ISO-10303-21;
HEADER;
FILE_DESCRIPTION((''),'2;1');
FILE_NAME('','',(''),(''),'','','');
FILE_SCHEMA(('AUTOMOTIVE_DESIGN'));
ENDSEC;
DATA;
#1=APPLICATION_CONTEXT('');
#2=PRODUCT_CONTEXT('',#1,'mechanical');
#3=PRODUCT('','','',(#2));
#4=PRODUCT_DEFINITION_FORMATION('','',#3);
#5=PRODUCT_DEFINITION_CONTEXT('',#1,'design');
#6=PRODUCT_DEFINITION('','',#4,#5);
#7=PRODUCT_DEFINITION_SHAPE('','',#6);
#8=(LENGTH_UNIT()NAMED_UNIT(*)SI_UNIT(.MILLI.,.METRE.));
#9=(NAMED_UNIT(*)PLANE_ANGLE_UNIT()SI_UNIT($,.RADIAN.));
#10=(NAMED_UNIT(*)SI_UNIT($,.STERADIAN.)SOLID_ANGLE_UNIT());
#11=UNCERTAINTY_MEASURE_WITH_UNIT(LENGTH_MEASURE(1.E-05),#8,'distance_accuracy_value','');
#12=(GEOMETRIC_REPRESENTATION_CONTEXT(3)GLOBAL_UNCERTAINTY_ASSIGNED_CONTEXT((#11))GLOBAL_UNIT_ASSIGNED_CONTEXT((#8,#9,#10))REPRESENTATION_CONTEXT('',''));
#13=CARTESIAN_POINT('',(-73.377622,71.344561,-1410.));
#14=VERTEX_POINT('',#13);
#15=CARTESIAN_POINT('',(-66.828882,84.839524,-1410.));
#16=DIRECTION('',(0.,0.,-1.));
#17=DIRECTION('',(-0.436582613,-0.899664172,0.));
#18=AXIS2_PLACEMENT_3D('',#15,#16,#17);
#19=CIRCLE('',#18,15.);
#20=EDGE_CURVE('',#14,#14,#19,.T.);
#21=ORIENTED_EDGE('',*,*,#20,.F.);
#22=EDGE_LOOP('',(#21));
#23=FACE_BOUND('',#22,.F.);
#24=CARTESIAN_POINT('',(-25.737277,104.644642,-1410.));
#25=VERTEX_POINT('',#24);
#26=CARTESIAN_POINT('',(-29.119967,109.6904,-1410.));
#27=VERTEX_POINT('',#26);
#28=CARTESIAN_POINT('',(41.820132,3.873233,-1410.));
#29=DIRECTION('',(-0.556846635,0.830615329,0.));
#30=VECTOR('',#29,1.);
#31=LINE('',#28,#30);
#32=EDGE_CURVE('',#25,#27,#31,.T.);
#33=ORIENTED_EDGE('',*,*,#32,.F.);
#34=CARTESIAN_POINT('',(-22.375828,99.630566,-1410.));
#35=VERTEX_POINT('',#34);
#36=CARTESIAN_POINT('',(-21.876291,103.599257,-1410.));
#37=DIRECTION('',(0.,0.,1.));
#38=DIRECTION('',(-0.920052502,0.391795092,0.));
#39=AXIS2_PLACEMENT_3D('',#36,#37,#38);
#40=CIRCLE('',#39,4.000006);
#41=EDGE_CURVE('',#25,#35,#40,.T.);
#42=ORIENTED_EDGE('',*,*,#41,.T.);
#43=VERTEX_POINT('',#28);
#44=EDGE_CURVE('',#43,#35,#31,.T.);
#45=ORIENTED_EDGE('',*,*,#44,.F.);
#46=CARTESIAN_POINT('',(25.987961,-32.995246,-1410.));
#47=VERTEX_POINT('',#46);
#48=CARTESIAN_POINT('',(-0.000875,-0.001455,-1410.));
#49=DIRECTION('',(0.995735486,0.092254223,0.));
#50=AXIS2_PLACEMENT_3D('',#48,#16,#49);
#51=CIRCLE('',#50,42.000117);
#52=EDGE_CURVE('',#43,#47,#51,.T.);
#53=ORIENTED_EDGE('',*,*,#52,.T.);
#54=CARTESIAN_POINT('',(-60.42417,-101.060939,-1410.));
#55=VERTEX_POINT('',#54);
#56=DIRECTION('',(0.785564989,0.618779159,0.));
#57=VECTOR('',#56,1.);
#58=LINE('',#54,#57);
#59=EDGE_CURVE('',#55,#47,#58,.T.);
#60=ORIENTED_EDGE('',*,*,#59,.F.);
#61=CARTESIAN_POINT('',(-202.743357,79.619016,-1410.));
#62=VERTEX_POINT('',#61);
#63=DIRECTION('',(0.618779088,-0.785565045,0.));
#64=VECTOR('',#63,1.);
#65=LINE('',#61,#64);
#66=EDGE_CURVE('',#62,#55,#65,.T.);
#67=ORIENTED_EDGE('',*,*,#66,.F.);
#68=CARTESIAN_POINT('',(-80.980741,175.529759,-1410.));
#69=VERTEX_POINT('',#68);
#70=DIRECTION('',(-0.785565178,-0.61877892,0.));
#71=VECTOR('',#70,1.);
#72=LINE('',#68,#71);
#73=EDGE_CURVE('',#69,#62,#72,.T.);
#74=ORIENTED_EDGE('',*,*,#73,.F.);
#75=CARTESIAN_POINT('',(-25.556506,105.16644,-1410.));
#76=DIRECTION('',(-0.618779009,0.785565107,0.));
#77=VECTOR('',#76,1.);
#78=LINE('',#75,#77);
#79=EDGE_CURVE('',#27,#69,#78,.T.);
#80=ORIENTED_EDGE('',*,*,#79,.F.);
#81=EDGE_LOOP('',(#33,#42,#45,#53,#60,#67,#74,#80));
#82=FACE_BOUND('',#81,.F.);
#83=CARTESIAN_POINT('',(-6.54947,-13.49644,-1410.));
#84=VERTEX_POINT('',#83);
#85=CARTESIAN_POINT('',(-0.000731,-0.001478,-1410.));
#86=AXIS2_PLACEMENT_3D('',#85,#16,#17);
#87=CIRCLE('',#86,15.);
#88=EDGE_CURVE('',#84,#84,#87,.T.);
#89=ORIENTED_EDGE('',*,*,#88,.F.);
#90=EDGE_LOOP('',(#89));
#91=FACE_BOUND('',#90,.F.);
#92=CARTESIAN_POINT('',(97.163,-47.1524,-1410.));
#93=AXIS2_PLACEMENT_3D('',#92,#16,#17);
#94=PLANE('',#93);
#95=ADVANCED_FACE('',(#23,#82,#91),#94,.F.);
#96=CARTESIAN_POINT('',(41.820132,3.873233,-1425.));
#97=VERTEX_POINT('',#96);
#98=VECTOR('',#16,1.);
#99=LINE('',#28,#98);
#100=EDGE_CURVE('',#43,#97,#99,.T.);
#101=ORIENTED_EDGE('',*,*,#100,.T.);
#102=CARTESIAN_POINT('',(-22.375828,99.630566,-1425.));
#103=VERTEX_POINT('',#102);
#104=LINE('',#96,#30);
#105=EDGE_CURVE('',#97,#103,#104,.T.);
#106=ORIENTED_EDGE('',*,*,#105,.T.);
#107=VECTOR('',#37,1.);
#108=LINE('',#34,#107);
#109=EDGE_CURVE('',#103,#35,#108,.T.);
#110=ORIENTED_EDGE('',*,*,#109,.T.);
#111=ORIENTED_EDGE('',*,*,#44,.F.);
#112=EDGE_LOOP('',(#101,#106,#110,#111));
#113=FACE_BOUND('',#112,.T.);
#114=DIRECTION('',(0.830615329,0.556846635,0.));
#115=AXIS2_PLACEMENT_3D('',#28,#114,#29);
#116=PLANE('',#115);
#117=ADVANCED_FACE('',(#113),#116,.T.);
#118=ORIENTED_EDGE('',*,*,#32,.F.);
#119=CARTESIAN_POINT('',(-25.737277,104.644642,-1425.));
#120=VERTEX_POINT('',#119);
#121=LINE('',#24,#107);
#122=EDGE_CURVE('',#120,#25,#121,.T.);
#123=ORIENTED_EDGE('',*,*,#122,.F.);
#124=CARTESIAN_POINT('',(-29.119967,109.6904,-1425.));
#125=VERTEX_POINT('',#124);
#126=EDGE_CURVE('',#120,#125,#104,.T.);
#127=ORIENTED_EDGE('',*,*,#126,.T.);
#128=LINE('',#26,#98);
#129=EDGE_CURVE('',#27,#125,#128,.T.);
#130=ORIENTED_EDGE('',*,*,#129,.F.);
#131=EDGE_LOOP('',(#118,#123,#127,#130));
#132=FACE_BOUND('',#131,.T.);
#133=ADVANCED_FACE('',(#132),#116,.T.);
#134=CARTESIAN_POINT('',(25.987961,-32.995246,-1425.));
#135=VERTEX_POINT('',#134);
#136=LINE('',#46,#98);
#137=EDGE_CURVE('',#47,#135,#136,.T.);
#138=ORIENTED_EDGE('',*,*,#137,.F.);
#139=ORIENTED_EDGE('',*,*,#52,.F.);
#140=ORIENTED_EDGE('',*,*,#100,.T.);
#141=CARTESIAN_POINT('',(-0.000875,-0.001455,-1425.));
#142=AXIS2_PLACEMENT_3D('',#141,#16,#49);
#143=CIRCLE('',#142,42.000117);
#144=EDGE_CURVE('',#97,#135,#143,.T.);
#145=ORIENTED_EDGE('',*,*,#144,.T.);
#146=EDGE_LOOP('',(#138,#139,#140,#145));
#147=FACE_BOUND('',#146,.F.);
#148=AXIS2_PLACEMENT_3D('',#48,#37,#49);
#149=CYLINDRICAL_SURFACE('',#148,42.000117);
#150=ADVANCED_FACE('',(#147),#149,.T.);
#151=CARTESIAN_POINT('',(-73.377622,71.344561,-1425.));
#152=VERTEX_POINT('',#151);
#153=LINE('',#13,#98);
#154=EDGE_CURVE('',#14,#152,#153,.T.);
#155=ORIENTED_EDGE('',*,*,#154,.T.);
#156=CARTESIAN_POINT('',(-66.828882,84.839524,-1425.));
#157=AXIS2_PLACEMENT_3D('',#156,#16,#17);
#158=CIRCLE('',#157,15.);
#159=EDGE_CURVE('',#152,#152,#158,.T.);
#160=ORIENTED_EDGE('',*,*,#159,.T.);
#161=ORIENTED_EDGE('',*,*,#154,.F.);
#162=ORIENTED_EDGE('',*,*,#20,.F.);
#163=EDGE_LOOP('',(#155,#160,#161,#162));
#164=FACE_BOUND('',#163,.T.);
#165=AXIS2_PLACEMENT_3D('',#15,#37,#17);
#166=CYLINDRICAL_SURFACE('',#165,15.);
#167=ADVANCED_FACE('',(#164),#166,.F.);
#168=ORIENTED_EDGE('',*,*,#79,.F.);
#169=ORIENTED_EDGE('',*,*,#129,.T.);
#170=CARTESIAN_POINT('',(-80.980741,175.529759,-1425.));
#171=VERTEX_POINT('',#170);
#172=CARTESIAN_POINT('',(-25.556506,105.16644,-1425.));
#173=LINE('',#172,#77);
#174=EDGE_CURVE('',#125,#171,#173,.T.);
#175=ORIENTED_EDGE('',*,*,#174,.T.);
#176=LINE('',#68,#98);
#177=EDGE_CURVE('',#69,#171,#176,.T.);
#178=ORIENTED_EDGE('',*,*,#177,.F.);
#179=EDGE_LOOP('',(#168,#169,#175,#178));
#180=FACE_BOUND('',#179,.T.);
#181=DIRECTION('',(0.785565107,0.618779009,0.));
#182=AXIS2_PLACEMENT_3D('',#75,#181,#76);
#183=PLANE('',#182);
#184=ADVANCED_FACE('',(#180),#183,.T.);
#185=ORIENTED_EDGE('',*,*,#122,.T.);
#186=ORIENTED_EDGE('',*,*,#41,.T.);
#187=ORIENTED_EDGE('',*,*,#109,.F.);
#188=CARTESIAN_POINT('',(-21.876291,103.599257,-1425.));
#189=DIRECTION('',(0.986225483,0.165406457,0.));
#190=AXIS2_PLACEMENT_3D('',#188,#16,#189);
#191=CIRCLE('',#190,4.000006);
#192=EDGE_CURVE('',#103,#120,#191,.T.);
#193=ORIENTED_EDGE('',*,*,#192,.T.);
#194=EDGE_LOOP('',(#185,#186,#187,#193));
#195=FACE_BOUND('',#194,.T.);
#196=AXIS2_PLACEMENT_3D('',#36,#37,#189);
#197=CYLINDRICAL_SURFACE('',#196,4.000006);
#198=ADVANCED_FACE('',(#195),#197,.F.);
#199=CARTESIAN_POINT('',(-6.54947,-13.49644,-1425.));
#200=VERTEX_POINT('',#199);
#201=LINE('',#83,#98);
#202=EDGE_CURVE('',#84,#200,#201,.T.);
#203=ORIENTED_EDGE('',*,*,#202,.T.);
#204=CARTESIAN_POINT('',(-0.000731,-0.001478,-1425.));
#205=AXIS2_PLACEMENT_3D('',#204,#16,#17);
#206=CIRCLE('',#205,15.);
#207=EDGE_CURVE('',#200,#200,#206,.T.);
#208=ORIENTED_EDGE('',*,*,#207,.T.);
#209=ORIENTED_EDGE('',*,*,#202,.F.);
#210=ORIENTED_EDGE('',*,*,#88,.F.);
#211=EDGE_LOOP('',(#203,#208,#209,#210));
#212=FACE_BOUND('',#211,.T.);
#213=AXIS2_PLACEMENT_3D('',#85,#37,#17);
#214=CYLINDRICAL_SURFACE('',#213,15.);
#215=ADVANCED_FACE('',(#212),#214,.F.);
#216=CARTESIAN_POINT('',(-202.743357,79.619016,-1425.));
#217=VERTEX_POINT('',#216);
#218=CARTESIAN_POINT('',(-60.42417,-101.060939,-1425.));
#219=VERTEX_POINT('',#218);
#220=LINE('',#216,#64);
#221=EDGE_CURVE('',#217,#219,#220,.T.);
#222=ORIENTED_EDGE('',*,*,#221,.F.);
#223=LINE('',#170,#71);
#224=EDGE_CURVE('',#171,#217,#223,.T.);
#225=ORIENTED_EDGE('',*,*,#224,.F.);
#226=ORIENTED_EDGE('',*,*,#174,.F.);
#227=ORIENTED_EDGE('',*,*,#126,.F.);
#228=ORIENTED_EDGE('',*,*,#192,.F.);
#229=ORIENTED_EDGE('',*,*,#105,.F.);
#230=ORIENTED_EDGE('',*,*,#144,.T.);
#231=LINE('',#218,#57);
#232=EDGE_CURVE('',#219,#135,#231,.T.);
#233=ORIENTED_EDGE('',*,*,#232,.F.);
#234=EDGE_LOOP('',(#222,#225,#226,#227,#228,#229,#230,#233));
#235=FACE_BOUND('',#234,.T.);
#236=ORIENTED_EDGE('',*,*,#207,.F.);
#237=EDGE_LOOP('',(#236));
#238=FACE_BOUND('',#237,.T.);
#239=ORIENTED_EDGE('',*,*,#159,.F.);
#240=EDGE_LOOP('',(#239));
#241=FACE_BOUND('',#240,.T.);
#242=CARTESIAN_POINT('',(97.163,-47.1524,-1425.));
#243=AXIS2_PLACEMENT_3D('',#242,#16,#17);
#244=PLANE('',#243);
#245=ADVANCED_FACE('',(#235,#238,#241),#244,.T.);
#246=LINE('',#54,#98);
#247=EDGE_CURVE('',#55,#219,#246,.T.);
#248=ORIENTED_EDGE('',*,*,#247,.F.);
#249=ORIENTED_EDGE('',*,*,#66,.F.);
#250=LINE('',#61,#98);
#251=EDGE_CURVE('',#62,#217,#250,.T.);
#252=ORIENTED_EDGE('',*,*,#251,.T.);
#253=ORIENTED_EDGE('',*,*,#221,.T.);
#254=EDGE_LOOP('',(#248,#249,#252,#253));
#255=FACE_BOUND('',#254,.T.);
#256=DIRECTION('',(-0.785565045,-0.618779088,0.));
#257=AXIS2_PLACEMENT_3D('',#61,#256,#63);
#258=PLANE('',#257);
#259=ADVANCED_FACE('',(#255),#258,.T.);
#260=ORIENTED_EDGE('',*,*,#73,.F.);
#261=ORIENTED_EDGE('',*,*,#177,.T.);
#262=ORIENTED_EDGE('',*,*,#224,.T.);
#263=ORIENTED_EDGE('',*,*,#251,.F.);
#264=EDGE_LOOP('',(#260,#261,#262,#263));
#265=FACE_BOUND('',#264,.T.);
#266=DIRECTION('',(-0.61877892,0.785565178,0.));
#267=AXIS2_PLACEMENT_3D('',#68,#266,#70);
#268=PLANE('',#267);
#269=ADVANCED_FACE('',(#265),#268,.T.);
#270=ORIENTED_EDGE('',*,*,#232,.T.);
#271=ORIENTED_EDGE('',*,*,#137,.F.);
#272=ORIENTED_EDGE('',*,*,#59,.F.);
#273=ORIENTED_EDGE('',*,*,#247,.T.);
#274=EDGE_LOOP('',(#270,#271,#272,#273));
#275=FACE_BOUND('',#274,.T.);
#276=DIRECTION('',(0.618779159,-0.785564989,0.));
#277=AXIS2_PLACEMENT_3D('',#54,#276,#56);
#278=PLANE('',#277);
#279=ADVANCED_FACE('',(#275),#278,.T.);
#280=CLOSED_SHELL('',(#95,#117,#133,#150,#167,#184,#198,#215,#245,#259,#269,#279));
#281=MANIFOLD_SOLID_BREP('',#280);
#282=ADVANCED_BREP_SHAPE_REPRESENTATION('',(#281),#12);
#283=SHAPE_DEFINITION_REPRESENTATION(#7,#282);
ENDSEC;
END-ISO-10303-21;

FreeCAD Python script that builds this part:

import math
import FreeCAD as App
import Part
import Sketcher
from FreeCAD import Vector

doc = App.newDocument("Part")
body = doc.addObject("PartDesign::Body", "Body")

sketch1 = doc.addObject("Sketcher::SketchObject", "Sketch")
body.addObject(sketch1)
sketch1.AttachmentSupport = (doc.XY_Plane, [""])
sketch1.MapMode = "FlatFace"
sketch1.AttachmentOffset = App.Placement(Vector(0, 0, -1410), App.Rotation())
sketch1.addGeometry(Part.LineSegment(Vector(-81, 175.5, 0), Vector(-25.6, 105.2, 0)), False)
sketch1.addGeometry(Part.ArcOfCircle(Part.Circle(Vector(-21.9, 103.6, 0), Vector(0, 0, 1), 4), math.radians(157), math.radians(370)), False)
sketch1.addGeometry(Part.LineSegment(Vector(-17.9, 104.3, 0), Vector(52.4, 159.7, 0)), False)
sketch1.addGeometry(Part.LineSegment(Vector(52.4, 159.7, 0), Vector(92.7, 108.6, 0)), False)
sketch1.addGeometry(Part.LineSegment(Vector(92.7, 108.6, 0), Vector(41.8, 3.9, 0)), False)
sketch1.addGeometry(Part.ArcOfCircle(Part.Circle(Vector(0, 0, 0), Vector(0, 0, 1), 42), math.radians(-52), math.radians(5)), False)
sketch1.addGeometry(Part.LineSegment(Vector(26, -33, 0), Vector(-60.4, -101.1, 0)), False)
sketch1.addGeometry(Part.LineSegment(Vector(-60.4, -101.1, 0), Vector(-202.7, 79.6, 0)), False)
sketch1.addGeometry(Part.LineSegment(Vector(-202.7, 79.6, 0), Vector(-81, 175.5, 0)), False)
sketch1.addGeometry(Part.Circle(Vector(0, 0, 0), Vector(0, 0, 1), 15), False)
sketch1.addGeometry(Part.Circle(Vector(-66.8, 84.8, 0), Vector(0, 0, 1), 15), False)
sketch1.addConstraint(Sketcher.Constraint("Coincident", 0, 2, 1, 1))
sketch1.addConstraint(Sketcher.Constraint("Coincident", 1, 2, 2, 1))
sketch1.addConstraint(Sketcher.Constraint("Coincident", 2, 2, 3, 1))
sketch1.addConstraint(Sketcher.Constraint("Coincident", 3, 2, 4, 1))
sketch1.addConstraint(Sketcher.Constraint("Coincident", 4, 2, 5, 2))
sketch1.addConstraint(Sketcher.Constraint("Tangent", 5, 1, 6, 1))
sketch1.addConstraint(Sketcher.Constraint("Coincident", 6, 2, 7, 1))
sketch1.addConstraint(Sketcher.Constraint("Coincident", 7, 2, 8, 1))
sketch1.addConstraint(Sketcher.Constraint("Coincident", 8, 2, 0, 1))
sketch1.addConstraint(Sketcher.Constraint("Coincident", 9, 3, 5, 3))
sketch1.addConstraint(Sketcher.Constraint("Equal", 9, 10))
sketch1.addConstraint(Sketcher.Constraint("Perpendicular", 0, 2))
sketch1.addConstraint(Sketcher.Constraint("Perpendicular", 2, 3))
sketch1.addConstraint(Sketcher.Constraint("Perpendicular", 3, 6))
sketch1.addConstraint(Sketcher.Constraint("Perpendicular", 6, 7))
sketch1.addConstraint(Sketcher.Constraint("Perpendicular", 7, 8))
sketch1.addConstraint(Sketcher.Constraint("Equal", 0, 2))
sketch1.addConstraint(Sketcher.Constraint("Diameter", 9, 30.0))
sketch1.addConstraint(Sketcher.Constraint("Radius", 1, 4.0))
sketch1.addConstraint(Sketcher.Constraint("Radius", 5, 42.0))
sketch1.addConstraint(Sketcher.Constraint("Distance", 3, 65.0))
sketch1.addConstraint(Sketcher.Constraint("Distance", 6, 110.0))
sketch1.addConstraint(Sketcher.Constraint("Distance", 7, 230.0))
sketch1.addConstraint(Sketcher.Constraint("Distance", 8, 155.0))
sketch1.addConstraint(Sketcher.Constraint("DistanceX", 10, 3, -1, 1, 66.829))
sketch1.addConstraint(Sketcher.Constraint("DistanceY", -1, 1, 1, 2, 104.261))
sketch1.addConstraint(Sketcher.Constraint("DistanceX", -1, 1, 2, 2, 52.432))
sketch1.addConstraint(Sketcher.Constraint("DistanceY", -1, 1, 2, 2, 159.685))
sketch1.addConstraint(Sketcher.Constraint("DistanceX", -1, 1, 5, 1, 25.988))
sketch1.addConstraint(Sketcher.Constraint("DistanceY", 6, 2, -1, 1, 101.061))
sketch1.addConstraint(Sketcher.Constraint("DistanceY", -1, 1, 7, 2, 79.619))
sketch1.addConstraint(Sketcher.Constraint("DistanceY", 5, 3, 10, 3, 84.841))
sketch1.addConstraint(Sketcher.Constraint("DistanceY", 4, 2, 1, 3, 99.726))
pad1 = doc.addObject("PartDesign::Pad", "Pad")
body.addObject(pad1)
pad1.Profile = sketch1
pad1.Length = 15
pad1.Reversed = True

sketch2 = doc.addObject("Sketcher::SketchObject", "Sketch001")
body.addObject(sketch2)
sketch2.AttachmentSupport = (doc.XY_Plane, [""])
sketch2.MapMode = "FlatFace"
sketch2.AttachmentOffset = App.Placement(Vector(0, 0, -1410), App.Rotation())
sketch2.addGeometry(Part.LineSegment(Vector(-29, 110, 0), Vector(42, 4, 0)), False)
sketch2.addGeometry(Part.LineSegment(Vector(42, 4, 0), Vector(129, 63, 0)), False)
sketch2.addGeometry(Part.LineSegment(Vector(129, 63, 0), Vector(58, 168, 0)), False)
sketch2.addGeometry(Part.LineSegment(Vector(58, 168, 0), Vector(-29, 110, 0)), False)
sketch2.addConstraint(Sketcher.Constraint("Coincident", 0, 2, 1, 1))
sketch2.addConstraint(Sketcher.Constraint("Coincident", 1, 2, 2, 1))
sketch2.addConstraint(Sketcher.Constraint("Coincident", 2, 2, 3, 1))
sketch2.addConstraint(Sketcher.Constraint("Coincident", 3, 2, 0, 1))
sketch2.addConstraint(Sketcher.Constraint("Perpendicular", 0, 1))
sketch2.addConstraint(Sketcher.Constraint("Perpendicular", 1, 2))
sketch2.addConstraint(Sketcher.Constraint("Perpendicular", 2, 3))
sketch2.addConstraint(Sketcher.Constraint("DistanceX", 3, 2, -1, 1, 29.12))
sketch2.addConstraint(Sketcher.Constraint("DistanceX", 2, 2, 1, 2, 70.94))
sketch2.addConstraint(Sketcher.Constraint("Distance", 0, 127.396))
sketch2.addConstraint(Sketcher.Constraint("Distance", 1, 105.335))
sketch2.addConstraint(Sketcher.Constraint("DistanceY", -1, 1, 0, 2, 3.8732))
pocket1 = doc.addObject("PartDesign::Pocket", "Pocket")
body.addObject(pocket1)
pocket1.Profile = sketch2
pocket1.Length = 15

doc.recompute()
